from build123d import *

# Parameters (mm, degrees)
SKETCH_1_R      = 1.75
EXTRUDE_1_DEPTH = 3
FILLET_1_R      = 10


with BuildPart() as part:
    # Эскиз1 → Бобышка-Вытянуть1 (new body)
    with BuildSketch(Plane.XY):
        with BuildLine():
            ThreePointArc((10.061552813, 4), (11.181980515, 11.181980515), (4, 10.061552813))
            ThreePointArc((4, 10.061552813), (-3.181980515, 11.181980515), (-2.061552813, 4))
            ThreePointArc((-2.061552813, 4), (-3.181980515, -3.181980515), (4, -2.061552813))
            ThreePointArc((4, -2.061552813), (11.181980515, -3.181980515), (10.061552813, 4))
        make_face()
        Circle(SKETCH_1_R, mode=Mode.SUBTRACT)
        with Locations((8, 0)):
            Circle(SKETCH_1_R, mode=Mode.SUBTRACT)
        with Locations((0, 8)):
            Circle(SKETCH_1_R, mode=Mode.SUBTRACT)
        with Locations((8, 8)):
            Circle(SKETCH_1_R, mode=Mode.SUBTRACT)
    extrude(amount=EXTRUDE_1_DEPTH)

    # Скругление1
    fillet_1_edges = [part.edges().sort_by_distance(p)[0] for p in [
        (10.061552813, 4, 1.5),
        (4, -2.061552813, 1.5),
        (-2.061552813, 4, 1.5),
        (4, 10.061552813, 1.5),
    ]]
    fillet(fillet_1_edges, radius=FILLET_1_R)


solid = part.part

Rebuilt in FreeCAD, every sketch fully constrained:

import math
import FreeCAD as App
import Part
import Sketcher
Q = App.Units.Quantity


def edges_at(feature, points):
    """Names of the edges that pass closest to the given points."""
    edges = feature.Shape.Edges
    near = lambda p: min(range(len(edges)), key=lambda i: edges[i].distToShape(Part.Vertex(*p))[0])
    return sorted({f"Edge{near(p) + 1}" for p in points})

doc = App.newDocument("Part")
params = doc.addObject("Spreadsheet::Sheet", "Params")
for row, (alias, value) in enumerate([
    ("sketch1_diameter", "3.5 mm"),
    ("sketch1_radius", "4.5 mm"),
    ("pad1_length", "3 mm"),
    ("fillet_radius", "10 mm"),
], start=1):
    params.set(f"A{row}", alias)
    params.set(f"B{row}", "=" + value)
    params.setAlias(f"B{row}", alias)

body = doc.addObject("PartDesign::Body", "Body")

# Sketch on XY plane
sketch1 = body.newObject("Sketcher::SketchObject", "Sketch")
sketch1.AttachmentSupport = (doc.getObject("XY_Plane"), [""])
sketch1.MapMode = "FlatFace"
sketch1.addGeometry(Part.ArcOfCircle(Part.Circle(App.Vector(8, 8, 0), App.Vector(0, 0, 1), 4.5), math.radians(-62.733956), math.radians(152.733956)), False)
sketch1.addGeometry(Part.ArcOfCircle(Part.Circle(App.Vector(0, 8, 0), App.Vector(0, 0, 1), 4.5), math.radians(27.266044), math.radians(242.733956)), False)
sketch1.addGeometry(Part.ArcOfCircle(Part.Circle(App.Vector(0, 0, 0), App.Vector(0, 0, 1), 4.5), math.radians(117.266044), math.radians(332.733956)), False)
sketch1.addGeometry(Part.ArcOfCircle(Part.Circle(App.Vector(8, 0, 0), App.Vector(0, 0, 1), 4.5), math.radians(-152.733956), math.radians(62.733956)), False)
sketch1.addGeometry(Part.Circle(App.Vector(0, 0, 0), App.Vector(0, 0, 1), 1.75), False)
sketch1.addGeometry(Part.Circle(App.Vector(8, 0, 0), App.Vector(0, 0, 1), 1.75), False)
sketch1.addGeometry(Part.Circle(App.Vector(0, 8, 0), App.Vector(0, 0, 1), 1.75), False)
sketch1.addGeometry(Part.Circle(App.Vector(8, 8, 0), App.Vector(0, 0, 1), 1.75), False)
sketch1.addConstraint(Sketcher.Constraint("Coincident", 0, 2, 1, 1))
sketch1.addConstraint(Sketcher.Constraint("Coincident", 1, 2, 2, 1))
sketch1.addConstraint(Sketcher.Constraint("Coincident", 2, 2, 3, 1))
sketch1.addConstraint(Sketcher.Constraint("Coincident", 3, 2, 0, 1))
sketch1.addConstraint(Sketcher.Constraint("Coincident", 2, 3, -1, 1))
sketch1.addConstraint(Sketcher.Constraint("Coincident", 4, 3, -1, 1))
sketch1.addConstraint(Sketcher.Constraint("Coincident", 5, 3, 3, 3))
sketch1.addConstraint(Sketcher.Constraint("Coincident", 6, 3, 1, 3))
sketch1.addConstraint(Sketcher.Constraint("Coincident", 7, 3, 0, 3))
sketch1.addConstraint(Sketcher.Constraint("Equal", 0, 1))
sketch1.addConstraint(Sketcher.Constraint("Equal", 1, 2))
sketch1.addConstraint(Sketcher.Constraint("Equal", 2, 3))
sketch1.addConstraint(Sketcher.Constraint("Equal", 4, 5))
sketch1.addConstraint(Sketcher.Constraint("Equal", 5, 6))
sketch1.addConstraint(Sketcher.Constraint("Equal", 6, 7))
sketch1.addConstraint(Sketcher.Constraint("PointOnObject", 1, 3, -2))
sketch1.addConstraint(Sketcher.Constraint("PointOnObject", 3, 3, -1))
sketch1.addConstraint(Sketcher.Constraint("Horizontal", 0, 3, 1, 3))
sketch1.addConstraint(Sketcher.Constraint("Horizontal", 1, 2, 3, 2))
sketch1.addConstraint(Sketcher.Constraint("Diameter", 4, Q("3.5 mm")))
sketch1.addConstraint(Sketcher.Constraint("Radius", 0, Q("4.5 mm")))
sketch1.addConstraint(Sketcher.Constraint("DistanceX", -1, 1, 0, 3, Q("8 mm")))
sketch1.addConstraint(Sketcher.Constraint("DistanceY", -1, 1, 0, 3, Q("8 mm")))
sketch1.setExpression("Constraints[19]", "Params.sketch1_diameter")
sketch1.setExpression("Constraints[20]", "Params.sketch1_radius")
pad1 = body.newObject("PartDesign::Pad", "Pad")
pad1.Profile = sketch1
pad1.setExpression("Length", "Params.pad1_length")
doc.recompute()

fillet = body.newObject("PartDesign::Fillet", "Fillet")
fillet.Base = (pad1, edges_at(pad1, [
    (10.062, 4, 1.5),
    (4, -2.062, 1.5),
    (-2.062, 4, 1.5),
    (4, 10.062, 1.5),
]))
fillet.setExpression("Radius", "Params.fillet_radius")

doc.recompute()
